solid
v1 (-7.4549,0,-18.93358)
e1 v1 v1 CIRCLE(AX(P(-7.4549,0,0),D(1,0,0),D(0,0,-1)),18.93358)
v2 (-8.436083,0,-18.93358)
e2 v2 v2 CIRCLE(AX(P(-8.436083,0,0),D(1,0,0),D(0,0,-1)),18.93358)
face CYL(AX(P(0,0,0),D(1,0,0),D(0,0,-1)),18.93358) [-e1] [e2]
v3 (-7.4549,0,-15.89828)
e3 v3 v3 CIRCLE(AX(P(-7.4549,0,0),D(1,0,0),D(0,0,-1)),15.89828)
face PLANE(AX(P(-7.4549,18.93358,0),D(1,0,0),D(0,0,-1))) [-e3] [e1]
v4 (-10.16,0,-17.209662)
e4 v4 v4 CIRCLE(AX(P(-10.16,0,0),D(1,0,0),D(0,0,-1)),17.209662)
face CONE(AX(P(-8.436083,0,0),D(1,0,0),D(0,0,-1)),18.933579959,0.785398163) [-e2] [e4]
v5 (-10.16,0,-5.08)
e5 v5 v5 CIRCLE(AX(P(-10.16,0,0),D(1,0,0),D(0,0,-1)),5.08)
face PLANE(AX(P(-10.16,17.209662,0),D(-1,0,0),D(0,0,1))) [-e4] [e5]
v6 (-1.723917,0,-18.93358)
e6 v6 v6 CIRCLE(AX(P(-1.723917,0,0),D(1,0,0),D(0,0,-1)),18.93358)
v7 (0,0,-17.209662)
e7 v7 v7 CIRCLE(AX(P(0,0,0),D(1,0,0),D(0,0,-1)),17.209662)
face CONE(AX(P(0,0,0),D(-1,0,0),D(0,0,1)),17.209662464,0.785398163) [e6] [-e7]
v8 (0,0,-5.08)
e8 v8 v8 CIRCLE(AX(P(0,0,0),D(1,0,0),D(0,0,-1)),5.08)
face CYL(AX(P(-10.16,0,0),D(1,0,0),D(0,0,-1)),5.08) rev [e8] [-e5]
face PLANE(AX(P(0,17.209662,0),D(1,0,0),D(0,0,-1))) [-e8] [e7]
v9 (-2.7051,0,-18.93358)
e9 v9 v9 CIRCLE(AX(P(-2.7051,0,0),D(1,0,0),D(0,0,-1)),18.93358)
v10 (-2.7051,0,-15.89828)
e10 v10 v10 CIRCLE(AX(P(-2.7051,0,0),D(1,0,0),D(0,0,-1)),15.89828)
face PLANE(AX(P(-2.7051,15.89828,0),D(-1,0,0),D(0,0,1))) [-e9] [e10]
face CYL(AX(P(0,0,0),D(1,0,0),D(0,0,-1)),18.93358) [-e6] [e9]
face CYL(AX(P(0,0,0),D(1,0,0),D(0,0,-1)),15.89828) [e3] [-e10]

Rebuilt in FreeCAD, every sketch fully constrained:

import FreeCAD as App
import Part
import Sketcher

V = App.Vector
Q = App.Units.Quantity

doc = App.newDocument("Part")
body = doc.addObject("PartDesign::Body", "Body")

# Sketch on XY plane
sketch1 = doc.addObject("Sketcher::SketchObject", "Sketch")
body.addObject(sketch1)
sketch1.AttachmentSupport = (doc.XY_Plane, [""])
sketch1.MapMode = "FlatFace"
sketch1.addGeometry(Part.LineSegment(V(-10.16, 0, 0), V(0, 0, 0)), False)
sketch1.addGeometry(Part.LineSegment(V(0, 0, 0), V(0, 17.209662, 0)), False)
sketch1.addGeometry(Part.LineSegment(V(0, 17.209662, 0), V(-1.723917, 18.93358, 0)), False)
sketch1.addGeometry(Part.LineSegment(V(-1.723917, 18.93358, 0), V(-2.7051, 18.93358, 0)), False)
sketch1.addGeometry(Part.LineSegment(V(-2.7051, 18.93358, 0), V(-2.7051, 15.89828, 0)), False)
sketch1.addGeometry(Part.LineSegment(V(-2.7051, 15.89828, 0), V(-7.4549, 15.89828, 0)), False)
sketch1.addGeometry(Part.LineSegment(V(-7.4549, 15.89828, 0), V(-7.4549, 18.93358, 0)), False)
sketch1.addGeometry(Part.LineSegment(V(-7.4549, 18.93358, 0), V(-8.436083, 18.93358, 0)), False)
sketch1.addGeometry(Part.LineSegment(V(-8.436083, 18.93358, 0), V(-10.16, 17.209662, 0)), False)
sketch1.addGeometry(Part.LineSegment(V(-10.16, 17.209662, 0), V(-10.16, 0, 0)), False)
sketch1.addConstraint(Sketcher.Constraint("Coincident", 0, 2, 1, 1))
sketch1.addConstraint(Sketcher.Constraint("Coincident", 1, 2, 2, 1))
sketch1.addConstraint(Sketcher.Constraint("Coincident", 2, 2, 3, 1))
sketch1.addConstraint(Sketcher.Constraint("Coincident", 3, 2, 4, 1))
sketch1.addConstraint(Sketcher.Constraint("Coincident", 4, 2, 5, 1))
sketch1.addConstraint(Sketcher.Constraint("Coincident", 5, 2, 6, 1))
sketch1.addConstraint(Sketcher.Constraint("Coincident", 6, 2, 7, 1))
sketch1.addConstraint(Sketcher.Constraint("Coincident", 7, 2, 8, 1))
sketch1.addConstraint(Sketcher.Constraint("Coincident", 8, 2, 9, 1))
sketch1.addConstraint(Sketcher.Constraint("Coincident", 9, 2, 0, 1))
sketch1.addConstraint(Sketcher.Constraint("Horizontal", 0))
sketch1.addConstraint(Sketcher.Constraint("Vertical", 1))
sketch1.addConstraint(Sketcher.Constraint("Horizontal", 3))
sketch1.addConstraint(Sketcher.Constraint("Vertical", 4))
sketch1.addConstraint(Sketcher.Constraint("Horizontal", 5))
sketch1.addConstraint(Sketcher.Constraint("Vertical", 6))
sketch1.addConstraint(Sketcher.Constraint("Horizontal", 7))
sketch1.addConstraint(Sketcher.Constraint("Vertical", 9))
sketch1.addConstraint(Sketcher.Constraint("Coincident", 0, 2, -1, 1))
sketch1.addConstraint(Sketcher.Constraint("Perpendicular", 2, 8))
sketch1.addConstraint(Sketcher.Constraint("Horizontal", 3, 2, 6, 2))
sketch1.addConstraint(Sketcher.Constraint("Horizontal", 1, 2, 8, 2))
sketch1.addConstraint(Sketcher.Constraint("Equal", 3, 7))
sketch1.addConstraint(Sketcher.Constraint("Equal", 2, 8))
sketch1.addConstraint(Sketcher.Constraint("DistanceX", 0, 1, 0, 2, Q("0.4 in")))
sketch1.addConstraint(Sketcher.Constraint("DistanceX", 5, 2, 5, 1, Q("0.187 in")))
sketch1.addConstraint(Sketcher.Constraint("DistanceY", 4, 2, 4, 1, Q("0.1195 in")))
sketch1.addConstraint(Sketcher.Constraint("DistanceX", 3, 2, 3, 1, 0.981183))
sketch1.addConstraint(Sketcher.Constraint("DistanceY", 1, 1, 1, 2, 17.209662))
revolution = doc.addObject("PartDesign::Revolution", "Revolution")
body.addObject(revolution)
revolution.Profile = sketch1
revolution.ReferenceAxis = (sketch1, ["H_Axis"])
revolution.Angle = 360

# Sketch on YZ plane
sketch2 = doc.addObject("Sketcher::SketchObject", "Sketch001")
body.addObject(sketch2)
sketch2.AttachmentSupport = (doc.YZ_Plane, [""])
sketch2.MapMode = "FlatFace"
sketch2.addGeometry(Part.Circle(V(0, 0, 0), V(0, 0, 1), 5.08), False)
sketch2.addConstraint(Sketcher.Constraint("Coincident", 0, 3, -1, 1))
sketch2.addConstraint(Sketcher.Constraint("Diameter", 0, Q("0.4 in")))
pocket1 = doc.addObject("PartDesign::Pocket", "Pocket")
body.addObject(pocket1)
pocket1.Profile = sketch2
pocket1.Type = "ThroughAll"

doc.recompute()
